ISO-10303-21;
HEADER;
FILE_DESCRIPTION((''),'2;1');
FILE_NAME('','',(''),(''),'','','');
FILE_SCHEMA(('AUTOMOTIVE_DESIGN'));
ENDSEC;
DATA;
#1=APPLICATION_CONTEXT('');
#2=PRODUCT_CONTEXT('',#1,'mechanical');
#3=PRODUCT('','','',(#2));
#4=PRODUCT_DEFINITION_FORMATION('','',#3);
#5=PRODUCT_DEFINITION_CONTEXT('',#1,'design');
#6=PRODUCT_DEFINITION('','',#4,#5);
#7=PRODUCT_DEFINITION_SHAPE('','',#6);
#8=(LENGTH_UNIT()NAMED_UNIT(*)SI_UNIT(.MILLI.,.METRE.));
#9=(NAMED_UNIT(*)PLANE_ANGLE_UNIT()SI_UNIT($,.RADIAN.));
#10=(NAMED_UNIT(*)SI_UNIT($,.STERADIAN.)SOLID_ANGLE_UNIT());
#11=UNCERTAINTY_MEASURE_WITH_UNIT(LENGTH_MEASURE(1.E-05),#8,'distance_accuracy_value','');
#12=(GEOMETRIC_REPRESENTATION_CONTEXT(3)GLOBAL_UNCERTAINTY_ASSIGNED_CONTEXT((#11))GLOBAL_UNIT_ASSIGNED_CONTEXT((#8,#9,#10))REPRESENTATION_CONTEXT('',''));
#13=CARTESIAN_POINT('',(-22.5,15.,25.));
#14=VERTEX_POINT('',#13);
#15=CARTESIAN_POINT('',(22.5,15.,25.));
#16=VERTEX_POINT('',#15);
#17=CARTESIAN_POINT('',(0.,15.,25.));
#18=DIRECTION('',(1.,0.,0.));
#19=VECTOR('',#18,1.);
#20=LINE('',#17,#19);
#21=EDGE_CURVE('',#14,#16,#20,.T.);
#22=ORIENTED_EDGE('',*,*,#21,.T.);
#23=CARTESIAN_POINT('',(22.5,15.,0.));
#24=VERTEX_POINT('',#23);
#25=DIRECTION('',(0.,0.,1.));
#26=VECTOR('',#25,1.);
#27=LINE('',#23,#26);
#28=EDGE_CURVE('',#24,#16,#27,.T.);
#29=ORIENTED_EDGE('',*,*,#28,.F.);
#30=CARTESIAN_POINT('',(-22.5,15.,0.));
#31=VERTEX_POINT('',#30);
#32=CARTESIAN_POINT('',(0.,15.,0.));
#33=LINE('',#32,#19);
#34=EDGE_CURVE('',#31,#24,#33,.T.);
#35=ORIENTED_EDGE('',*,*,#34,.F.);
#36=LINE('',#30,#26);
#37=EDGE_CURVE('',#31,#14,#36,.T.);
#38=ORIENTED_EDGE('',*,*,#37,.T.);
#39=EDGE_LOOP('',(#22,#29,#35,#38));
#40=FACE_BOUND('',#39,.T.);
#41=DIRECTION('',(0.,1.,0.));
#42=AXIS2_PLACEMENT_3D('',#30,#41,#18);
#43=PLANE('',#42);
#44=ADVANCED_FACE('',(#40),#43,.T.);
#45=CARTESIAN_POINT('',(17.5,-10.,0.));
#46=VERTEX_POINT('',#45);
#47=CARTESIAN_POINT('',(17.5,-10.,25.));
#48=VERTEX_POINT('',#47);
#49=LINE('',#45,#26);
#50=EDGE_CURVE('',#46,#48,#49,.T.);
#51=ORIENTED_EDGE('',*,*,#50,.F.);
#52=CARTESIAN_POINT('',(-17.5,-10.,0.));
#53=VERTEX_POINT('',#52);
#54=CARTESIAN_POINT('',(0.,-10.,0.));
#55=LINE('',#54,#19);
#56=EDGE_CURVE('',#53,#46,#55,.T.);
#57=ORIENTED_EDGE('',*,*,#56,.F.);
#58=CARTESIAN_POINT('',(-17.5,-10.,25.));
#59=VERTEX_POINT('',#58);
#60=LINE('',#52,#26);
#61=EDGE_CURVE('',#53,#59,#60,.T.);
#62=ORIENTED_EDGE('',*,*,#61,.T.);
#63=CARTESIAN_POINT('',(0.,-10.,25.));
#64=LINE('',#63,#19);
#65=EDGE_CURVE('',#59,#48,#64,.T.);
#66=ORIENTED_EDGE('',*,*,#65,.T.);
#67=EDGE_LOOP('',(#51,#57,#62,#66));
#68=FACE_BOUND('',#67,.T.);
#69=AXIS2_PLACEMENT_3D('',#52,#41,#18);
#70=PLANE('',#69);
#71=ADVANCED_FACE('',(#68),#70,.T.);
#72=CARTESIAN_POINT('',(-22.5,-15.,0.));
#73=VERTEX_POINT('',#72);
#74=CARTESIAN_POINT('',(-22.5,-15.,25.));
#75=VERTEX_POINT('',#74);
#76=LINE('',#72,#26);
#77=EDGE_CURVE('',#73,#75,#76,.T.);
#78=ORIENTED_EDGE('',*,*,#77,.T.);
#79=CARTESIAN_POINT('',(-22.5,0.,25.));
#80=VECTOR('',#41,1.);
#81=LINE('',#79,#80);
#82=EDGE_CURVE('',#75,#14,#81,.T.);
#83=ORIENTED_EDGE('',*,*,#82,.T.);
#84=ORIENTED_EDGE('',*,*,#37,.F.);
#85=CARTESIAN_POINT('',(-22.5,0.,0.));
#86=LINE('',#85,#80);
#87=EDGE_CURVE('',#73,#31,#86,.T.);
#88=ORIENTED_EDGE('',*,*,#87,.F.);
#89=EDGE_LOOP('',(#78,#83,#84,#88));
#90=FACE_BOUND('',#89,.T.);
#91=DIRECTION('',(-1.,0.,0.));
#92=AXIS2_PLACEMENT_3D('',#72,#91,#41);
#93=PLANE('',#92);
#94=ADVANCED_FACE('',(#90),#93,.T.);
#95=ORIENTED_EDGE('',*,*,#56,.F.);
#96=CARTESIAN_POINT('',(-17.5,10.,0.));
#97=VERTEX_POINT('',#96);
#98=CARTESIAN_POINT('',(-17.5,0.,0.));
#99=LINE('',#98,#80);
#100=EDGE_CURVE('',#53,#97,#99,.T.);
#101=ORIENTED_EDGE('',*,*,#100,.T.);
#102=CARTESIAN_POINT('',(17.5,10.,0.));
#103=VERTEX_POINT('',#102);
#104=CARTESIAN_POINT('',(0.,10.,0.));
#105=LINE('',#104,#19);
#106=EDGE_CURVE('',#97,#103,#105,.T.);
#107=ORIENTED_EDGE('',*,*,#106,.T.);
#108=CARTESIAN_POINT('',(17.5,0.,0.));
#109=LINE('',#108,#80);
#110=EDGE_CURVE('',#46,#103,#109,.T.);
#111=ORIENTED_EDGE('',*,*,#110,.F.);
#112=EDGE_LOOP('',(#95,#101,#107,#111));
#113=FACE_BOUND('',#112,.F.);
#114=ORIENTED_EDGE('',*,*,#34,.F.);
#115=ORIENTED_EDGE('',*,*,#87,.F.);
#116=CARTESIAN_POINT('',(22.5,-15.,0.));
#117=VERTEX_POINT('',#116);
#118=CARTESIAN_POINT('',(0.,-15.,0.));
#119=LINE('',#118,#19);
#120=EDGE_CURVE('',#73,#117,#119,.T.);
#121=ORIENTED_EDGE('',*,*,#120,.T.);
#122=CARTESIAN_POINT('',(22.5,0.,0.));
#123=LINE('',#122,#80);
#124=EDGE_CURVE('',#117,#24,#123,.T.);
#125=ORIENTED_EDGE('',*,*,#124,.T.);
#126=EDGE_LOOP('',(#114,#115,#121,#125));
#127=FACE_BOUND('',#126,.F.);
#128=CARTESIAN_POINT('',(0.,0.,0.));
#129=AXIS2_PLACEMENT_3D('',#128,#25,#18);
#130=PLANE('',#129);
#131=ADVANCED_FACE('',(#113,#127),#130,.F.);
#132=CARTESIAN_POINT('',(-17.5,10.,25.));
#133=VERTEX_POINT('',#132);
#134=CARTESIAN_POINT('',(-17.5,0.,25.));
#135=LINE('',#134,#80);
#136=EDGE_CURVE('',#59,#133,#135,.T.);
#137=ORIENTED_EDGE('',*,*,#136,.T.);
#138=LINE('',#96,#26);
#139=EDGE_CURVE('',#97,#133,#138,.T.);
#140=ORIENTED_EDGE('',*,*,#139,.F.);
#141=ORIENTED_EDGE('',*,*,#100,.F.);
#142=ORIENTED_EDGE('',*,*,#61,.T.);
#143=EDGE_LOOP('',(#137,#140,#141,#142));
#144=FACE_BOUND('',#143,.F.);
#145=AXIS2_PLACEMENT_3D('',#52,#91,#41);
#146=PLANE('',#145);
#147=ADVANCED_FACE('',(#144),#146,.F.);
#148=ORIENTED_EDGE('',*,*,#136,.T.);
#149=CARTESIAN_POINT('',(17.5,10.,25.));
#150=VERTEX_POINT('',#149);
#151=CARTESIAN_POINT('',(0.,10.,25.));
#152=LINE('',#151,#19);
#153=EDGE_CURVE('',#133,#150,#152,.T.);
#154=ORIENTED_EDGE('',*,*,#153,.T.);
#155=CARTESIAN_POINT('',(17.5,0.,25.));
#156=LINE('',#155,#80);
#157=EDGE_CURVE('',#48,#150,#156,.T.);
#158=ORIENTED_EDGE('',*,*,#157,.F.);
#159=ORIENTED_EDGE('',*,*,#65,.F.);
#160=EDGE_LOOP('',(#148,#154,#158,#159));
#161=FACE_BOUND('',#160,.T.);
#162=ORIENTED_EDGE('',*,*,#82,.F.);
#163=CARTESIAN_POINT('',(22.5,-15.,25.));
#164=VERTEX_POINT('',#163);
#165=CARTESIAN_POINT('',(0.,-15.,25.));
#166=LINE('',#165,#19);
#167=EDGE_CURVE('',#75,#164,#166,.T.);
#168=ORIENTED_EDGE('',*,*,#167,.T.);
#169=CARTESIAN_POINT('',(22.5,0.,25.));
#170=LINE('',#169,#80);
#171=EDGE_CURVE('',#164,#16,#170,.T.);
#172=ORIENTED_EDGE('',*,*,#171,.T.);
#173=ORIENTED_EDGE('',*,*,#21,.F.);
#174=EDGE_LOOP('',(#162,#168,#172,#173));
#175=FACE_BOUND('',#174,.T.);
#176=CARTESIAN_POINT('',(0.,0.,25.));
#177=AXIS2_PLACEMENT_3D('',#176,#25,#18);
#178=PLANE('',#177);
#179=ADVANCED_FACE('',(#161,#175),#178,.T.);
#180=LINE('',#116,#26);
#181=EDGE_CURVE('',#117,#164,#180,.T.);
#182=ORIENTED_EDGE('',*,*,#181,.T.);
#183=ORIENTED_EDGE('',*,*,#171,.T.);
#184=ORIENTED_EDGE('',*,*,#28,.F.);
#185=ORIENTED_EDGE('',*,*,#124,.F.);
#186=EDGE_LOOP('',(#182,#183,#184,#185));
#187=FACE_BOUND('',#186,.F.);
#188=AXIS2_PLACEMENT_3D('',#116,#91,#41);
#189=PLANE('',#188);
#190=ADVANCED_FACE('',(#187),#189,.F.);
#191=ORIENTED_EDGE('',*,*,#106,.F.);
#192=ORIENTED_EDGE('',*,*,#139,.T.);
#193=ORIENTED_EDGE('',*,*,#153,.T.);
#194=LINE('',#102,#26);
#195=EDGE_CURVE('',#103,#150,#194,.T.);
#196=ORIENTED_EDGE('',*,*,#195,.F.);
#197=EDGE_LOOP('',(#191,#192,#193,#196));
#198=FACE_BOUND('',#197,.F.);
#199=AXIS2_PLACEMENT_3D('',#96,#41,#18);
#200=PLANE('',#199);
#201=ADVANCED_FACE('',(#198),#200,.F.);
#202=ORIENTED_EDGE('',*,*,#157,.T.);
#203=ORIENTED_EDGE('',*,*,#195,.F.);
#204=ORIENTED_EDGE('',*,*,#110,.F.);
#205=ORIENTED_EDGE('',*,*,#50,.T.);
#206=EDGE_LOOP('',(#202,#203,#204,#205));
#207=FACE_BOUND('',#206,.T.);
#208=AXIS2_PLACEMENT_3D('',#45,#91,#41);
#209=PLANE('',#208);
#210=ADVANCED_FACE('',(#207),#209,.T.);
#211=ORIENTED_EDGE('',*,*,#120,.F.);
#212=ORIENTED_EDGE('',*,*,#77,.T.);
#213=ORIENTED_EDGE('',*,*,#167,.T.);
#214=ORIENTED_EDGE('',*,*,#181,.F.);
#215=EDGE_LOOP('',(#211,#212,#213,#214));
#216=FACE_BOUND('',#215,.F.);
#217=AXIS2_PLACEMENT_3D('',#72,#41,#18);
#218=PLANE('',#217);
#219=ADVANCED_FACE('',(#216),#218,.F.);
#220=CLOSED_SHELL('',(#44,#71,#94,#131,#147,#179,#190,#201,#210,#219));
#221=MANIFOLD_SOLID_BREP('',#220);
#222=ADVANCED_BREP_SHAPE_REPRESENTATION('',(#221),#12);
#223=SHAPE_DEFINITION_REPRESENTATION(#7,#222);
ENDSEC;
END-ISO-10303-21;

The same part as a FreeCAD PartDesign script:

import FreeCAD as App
import Part
import Sketcher

doc = App.newDocument("Part")
body = doc.addObject("PartDesign::Body", "Body")

sketch1 = body.newObject("Sketcher::SketchObject", "Sketch")
sketch1.AttachmentSupport = (doc.getObject("XY_Plane"), [""])
sketch1.MapMode = "FlatFace"
sketch1.addGeometry([
    Part.LineSegment(App.Vector(-22.5, 15, 0), App.Vector(-22.5, -15, 0)),
    Part.LineSegment(App.Vector(-22.5, -15, 0), App.Vector(22.5, -15, 0)),
    Part.LineSegment(App.Vector(22.5, -15, 0), App.Vector(22.5, 15, 0)),
    Part.LineSegment(App.Vector(22.5, 15, 0), App.Vector(-22.5, 15, 0)),
    Part.LineSegment(App.Vector(17.5, -10, 0), App.Vector(-17.5, -10, 0)),
    Part.LineSegment(App.Vector(-17.5, -10, 0), App.Vector(-17.5, 10, 0)),
    Part.LineSegment(App.Vector(-17.5, 10, 0), App.Vector(17.5, 10, 0)),
    Part.LineSegment(App.Vector(17.5, 10, 0), App.Vector(17.5, -10, 0)),
], False)
sketch1.addConstraint([
    Sketcher.Constraint("Coincident", 0, 2, 1, 1),
    Sketcher.Constraint("Coincident", 1, 2, 2, 1),
    Sketcher.Constraint("Coincident", 2, 2, 3, 1),
    Sketcher.Constraint("Coincident", 3, 2, 0, 1),
    Sketcher.Constraint("Coincident", 4, 2, 5, 1),
    Sketcher.Constraint("Coincident", 5, 2, 6, 1),
    Sketcher.Constraint("Coincident", 6, 2, 7, 1),
    Sketcher.Constraint("Coincident", 7, 2, 4, 1),
    Sketcher.Constraint("Vertical", 0),
    Sketcher.Constraint("Horizontal", 1),
    Sketcher.Constraint("Vertical", 2),
    Sketcher.Constraint("Horizontal", 3),
    Sketcher.Constraint("Horizontal", 4),
    Sketcher.Constraint("Vertical", 5),
    Sketcher.Constraint("Horizontal", 6),
    Sketcher.Constraint("Vertical", 7),
    Sketcher.Constraint("Symmetric", 0, 2, 2, 2, -1, 1),
    Sketcher.Constraint("Symmetric", 4, 2, 6, 2, -1, 1),
    Sketcher.Constraint("DistanceX", 1, 1, 1, 2, 45.0),
    Sketcher.Constraint("DistanceX", 4, 2, 4, 1, 35.0),
    Sketcher.Constraint("DistanceY", 0, 2, 0, 1, 30.0),
    Sketcher.Constraint("DistanceY", 5, 1, 5, 2, 20.0),
])
pad1 = body.newObject("PartDesign::Pad", "Pad")
pad1.Profile = sketch1
pad1.Length = 25

doc.recompute()
